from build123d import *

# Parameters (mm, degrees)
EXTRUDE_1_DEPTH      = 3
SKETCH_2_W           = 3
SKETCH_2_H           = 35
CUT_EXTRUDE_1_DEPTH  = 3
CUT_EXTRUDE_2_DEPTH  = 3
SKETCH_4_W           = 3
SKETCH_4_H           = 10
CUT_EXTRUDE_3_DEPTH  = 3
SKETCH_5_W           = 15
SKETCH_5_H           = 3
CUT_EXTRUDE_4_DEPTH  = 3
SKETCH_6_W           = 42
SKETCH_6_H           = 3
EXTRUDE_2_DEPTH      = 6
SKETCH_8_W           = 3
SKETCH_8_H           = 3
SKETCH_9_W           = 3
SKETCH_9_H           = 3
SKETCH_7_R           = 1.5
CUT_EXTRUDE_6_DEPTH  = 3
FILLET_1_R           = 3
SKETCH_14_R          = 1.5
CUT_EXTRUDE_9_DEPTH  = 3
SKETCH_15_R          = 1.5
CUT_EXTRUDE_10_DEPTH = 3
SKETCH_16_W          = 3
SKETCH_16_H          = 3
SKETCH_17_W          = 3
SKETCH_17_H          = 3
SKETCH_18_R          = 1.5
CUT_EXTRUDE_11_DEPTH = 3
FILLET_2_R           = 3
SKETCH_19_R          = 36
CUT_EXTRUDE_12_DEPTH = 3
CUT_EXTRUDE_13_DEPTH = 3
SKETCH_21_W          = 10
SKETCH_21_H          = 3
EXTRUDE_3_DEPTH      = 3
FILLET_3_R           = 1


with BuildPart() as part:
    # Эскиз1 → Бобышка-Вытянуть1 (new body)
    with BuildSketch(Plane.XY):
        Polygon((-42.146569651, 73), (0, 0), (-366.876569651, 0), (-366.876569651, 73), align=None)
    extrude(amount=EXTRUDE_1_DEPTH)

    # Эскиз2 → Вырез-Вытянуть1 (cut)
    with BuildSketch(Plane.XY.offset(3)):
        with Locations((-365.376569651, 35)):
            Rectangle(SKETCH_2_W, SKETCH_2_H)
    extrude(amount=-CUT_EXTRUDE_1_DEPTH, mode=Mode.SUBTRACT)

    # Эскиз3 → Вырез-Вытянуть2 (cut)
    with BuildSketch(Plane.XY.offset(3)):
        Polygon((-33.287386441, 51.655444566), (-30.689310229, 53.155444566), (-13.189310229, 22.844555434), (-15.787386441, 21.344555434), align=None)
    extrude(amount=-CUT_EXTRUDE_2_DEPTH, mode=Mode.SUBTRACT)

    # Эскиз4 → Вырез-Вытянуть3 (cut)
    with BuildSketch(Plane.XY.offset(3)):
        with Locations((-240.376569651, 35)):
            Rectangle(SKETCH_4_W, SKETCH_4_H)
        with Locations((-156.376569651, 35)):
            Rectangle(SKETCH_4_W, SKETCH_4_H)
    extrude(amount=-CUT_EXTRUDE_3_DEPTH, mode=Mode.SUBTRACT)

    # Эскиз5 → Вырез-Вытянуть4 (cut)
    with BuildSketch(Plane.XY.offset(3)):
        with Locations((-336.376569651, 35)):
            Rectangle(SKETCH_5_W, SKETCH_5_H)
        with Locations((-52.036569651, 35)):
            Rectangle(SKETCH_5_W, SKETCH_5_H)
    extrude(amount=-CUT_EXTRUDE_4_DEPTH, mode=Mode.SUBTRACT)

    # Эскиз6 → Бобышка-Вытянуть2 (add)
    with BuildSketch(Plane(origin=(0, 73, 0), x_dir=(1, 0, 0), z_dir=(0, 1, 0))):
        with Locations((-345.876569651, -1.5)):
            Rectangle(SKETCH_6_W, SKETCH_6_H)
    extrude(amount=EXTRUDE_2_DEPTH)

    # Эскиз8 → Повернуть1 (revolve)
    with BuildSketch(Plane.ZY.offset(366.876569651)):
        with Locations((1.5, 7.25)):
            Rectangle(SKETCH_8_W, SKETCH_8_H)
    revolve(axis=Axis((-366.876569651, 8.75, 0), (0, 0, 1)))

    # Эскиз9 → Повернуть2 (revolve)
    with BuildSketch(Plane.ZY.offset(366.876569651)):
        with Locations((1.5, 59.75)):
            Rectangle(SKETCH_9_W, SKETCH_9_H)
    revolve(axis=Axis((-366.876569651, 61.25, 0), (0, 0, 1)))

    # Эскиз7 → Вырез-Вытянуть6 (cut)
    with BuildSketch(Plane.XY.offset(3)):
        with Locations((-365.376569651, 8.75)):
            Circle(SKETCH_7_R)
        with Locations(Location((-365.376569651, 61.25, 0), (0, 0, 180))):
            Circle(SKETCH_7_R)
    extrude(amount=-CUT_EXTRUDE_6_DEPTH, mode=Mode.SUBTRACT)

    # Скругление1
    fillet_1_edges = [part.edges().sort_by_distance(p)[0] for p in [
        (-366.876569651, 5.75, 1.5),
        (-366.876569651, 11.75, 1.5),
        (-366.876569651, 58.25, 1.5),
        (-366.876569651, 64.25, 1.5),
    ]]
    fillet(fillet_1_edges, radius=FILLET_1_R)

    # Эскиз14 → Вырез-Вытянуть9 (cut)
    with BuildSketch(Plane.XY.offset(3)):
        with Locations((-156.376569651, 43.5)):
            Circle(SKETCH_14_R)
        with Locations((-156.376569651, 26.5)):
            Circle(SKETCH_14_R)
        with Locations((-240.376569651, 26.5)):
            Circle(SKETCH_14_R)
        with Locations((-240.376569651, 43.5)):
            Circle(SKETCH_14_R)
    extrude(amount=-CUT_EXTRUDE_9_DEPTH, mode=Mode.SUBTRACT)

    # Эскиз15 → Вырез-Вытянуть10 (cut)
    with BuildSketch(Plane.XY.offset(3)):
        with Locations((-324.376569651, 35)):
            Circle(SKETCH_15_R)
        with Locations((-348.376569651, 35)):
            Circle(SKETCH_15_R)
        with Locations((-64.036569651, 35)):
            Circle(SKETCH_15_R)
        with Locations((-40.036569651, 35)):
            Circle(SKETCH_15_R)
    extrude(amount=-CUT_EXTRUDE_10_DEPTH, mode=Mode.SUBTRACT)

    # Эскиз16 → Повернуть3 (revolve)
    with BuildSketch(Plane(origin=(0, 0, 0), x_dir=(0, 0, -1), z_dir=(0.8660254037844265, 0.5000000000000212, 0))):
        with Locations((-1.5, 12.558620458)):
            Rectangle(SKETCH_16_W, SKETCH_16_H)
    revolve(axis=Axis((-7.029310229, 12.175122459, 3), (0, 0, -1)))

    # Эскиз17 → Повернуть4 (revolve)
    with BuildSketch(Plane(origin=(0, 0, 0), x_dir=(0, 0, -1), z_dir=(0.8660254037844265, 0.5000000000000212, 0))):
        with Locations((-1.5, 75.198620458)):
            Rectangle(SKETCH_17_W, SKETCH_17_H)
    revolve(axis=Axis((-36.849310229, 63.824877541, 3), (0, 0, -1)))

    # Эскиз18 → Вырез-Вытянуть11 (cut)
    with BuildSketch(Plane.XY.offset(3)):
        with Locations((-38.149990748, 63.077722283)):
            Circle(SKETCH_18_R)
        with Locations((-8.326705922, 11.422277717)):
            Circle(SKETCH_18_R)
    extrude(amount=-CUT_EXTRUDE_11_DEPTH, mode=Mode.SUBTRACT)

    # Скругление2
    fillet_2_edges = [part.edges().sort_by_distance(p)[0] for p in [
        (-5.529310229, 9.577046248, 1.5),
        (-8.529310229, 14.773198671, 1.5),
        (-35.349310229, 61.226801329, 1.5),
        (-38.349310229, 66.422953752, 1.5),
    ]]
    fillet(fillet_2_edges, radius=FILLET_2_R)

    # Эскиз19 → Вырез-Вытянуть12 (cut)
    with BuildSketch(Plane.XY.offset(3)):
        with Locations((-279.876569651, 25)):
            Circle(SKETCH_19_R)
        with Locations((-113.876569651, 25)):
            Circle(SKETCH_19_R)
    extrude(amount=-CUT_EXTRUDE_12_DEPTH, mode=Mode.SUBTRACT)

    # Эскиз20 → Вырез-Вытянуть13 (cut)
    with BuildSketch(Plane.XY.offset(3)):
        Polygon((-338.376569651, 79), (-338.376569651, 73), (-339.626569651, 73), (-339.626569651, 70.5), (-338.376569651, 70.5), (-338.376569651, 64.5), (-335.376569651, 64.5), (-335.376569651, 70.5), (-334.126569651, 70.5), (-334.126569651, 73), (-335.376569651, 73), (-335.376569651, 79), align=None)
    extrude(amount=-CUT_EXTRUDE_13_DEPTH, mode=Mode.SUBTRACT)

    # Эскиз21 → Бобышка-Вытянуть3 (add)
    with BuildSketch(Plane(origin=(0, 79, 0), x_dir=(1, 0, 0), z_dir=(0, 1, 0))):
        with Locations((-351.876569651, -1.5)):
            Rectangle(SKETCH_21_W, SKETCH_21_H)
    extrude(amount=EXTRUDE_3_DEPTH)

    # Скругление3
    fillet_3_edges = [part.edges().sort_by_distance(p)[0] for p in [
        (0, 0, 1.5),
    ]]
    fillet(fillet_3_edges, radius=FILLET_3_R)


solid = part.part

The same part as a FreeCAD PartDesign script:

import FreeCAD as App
import Part
import Sketcher
from FreeCAD import Vector
Q = App.Units.Quantity


def edges_at(feature, points):
    """Names of the edges that pass closest to the given points."""
    edges = feature.Shape.Edges
    near = lambda p: min(range(len(edges)), key=lambda i: edges[i].distToShape(Part.Vertex(*p))[0])
    return sorted({f"Edge{near(p) + 1}" for p in points})

doc = App.newDocument("Part")
body = doc.addObject("PartDesign::Body", "Body")

# Sketch on XY plane
sketch1 = doc.addObject("Sketcher::SketchObject", "Sketch")
body.addObject(sketch1)
sketch1.AttachmentSupport = (doc.XY_Plane, [""])
sketch1.MapMode = "FlatFace"
sketch1.addGeometry([
    Part.LineSegment(Vector(0, 0, 0), Vector(-42, 73, 0)),
    Part.LineSegment(Vector(-42, 73, 0), Vector(-367, 73, 0)),
    Part.LineSegment(Vector(-367, 73, 0), Vector(-367, 0, 0)),
    Part.LineSegment(Vector(-367, 0, 0), Vector(0, 0, 0)),
], False)
sketch1.addConstraint([
    Sketcher.Constraint("Coincident", 0, 2, 1, 1),
    Sketcher.Constraint("Coincident", 1, 2, 2, 1),
    Sketcher.Constraint("Coincident", 2, 2, 3, 1),
    Sketcher.Constraint("Coincident", 3, 2, 0, 1),
    Sketcher.Constraint("Horizontal", 1),
    Sketcher.Constraint("Vertical", 2),
    Sketcher.Constraint("Horizontal", 3),
    Sketcher.Constraint("Coincident", 3, 2, -1, 1),
    Sketcher.Constraint("DistanceY", 2, 2, 2, 1, 73.0),
    Sketcher.Constraint("Angle", 0, Q("120 deg")),
    Sketcher.Constraint("DistanceX", 1, 2, 1, 1, 324.73),
])
pad1 = doc.addObject("PartDesign::Pad", "Pad")
body.addObject(pad1)
pad1.Profile = sketch1
pad1.Length = 3

# Sketch on XY plane
sketch2 = doc.addObject("Sketcher::SketchObject", "Sketch001")
body.addObject(sketch2)
sketch2.AttachmentSupport = (doc.XY_Plane, [""])
sketch2.MapMode = "FlatFace"
sketch2.AttachmentOffset = App.Placement(Vector(0, 0, 3), App.Rotation())
sketch2.addGeometry([
    Part.LineSegment(Vector(-366.9, 52.5, 0), Vector(-366.9, 17.5, 0)),
    Part.LineSegment(Vector(-366.9, 17.5, 0), Vector(-363.9, 17.5, 0)),
    Part.LineSegment(Vector(-363.9, 17.5, 0), Vector(-363.9, 52.5, 0)),
    Part.LineSegment(Vector(-363.9, 52.5, 0), Vector(-366.9, 52.5, 0)),
], False)
sketch2.addConstraint([
    Sketcher.Constraint("Coincident", 0, 2, 1, 1),
    Sketcher.Constraint("Coincident", 1, 2, 2, 1),
    Sketcher.Constraint("Coincident", 2, 2, 3, 1),
    Sketcher.Constraint("Coincident", 3, 2, 0, 1),
    Sketcher.Constraint("Vertical", 0),
    Sketcher.Constraint("Horizontal", 1),
    Sketcher.Constraint("Vertical", 2),
    Sketcher.Constraint("Horizontal", 3),
    Sketcher.Constraint("DistanceX", 1, 1, 1, 2, 3.0),
    Sketcher.Constraint("DistanceY", 0, 2, 0, 1, 35.0),
    Sketcher.Constraint("DistanceY", -1, 1, 0, 2, 17.5),
    Sketcher.Constraint("DistanceX", 0, 2, -1, 1, 366.87657),
])
pocket1 = doc.addObject("PartDesign::Pocket", "Pocket")
body.addObject(pocket1)
pocket1.Profile = sketch2
pocket1.Length = 3

# Sketch on XY plane
sketch3 = doc.addObject("Sketcher::SketchObject", "Sketch002")
body.addObject(sketch3)
sketch3.AttachmentSupport = (doc.XY_Plane, [""])
sketch3.MapMode = "FlatFace"
sketch3.AttachmentOffset = App.Placement(Vector(0, 0, 3), App.Rotation())
sketch3.addGeometry([
    Part.LineSegment(Vector(-30.7, 53.2, 0), Vector(-33.3, 51.7, 0)),
    Part.LineSegment(Vector(-33.3, 51.7, 0), Vector(-15.8, 21.3, 0)),
    Part.LineSegment(Vector(-15.8, 21.3, 0), Vector(-13.2, 22.8, 0)),
    Part.LineSegment(Vector(-13.2, 22.8, 0), Vector(-30.7, 53.2, 0)),
], False)
sketch3.addConstraint([
    Sketcher.Constraint("Coincident", 0, 2, 1, 1),
    Sketcher.Constraint("Coincident", 1, 2, 2, 1),
    Sketcher.Constraint("Coincident", 2, 2, 3, 1),
    Sketcher.Constraint("Coincident", 3, 2, 0, 1),
    Sketcher.Constraint("Perpendicular", 0, 1),
    Sketcher.Constraint("Perpendicular", 1, 2),
    Sketcher.Constraint("Perpendicular", 2, 3),
    Sketcher.Constraint("Angle", 0, Q("-150 deg")),
    Sketcher.Constraint("Distance", 0, 3.0),
    Sketcher.Constraint("Distance", 1, 35.0),
    Sketcher.Constraint("DistanceX", 2, 2, -1, 1, 13.18931),
    Sketcher.Constraint("DistanceY", -1, 1, 0, 2, 51.655445),
])
pocket2 = doc.addObject("PartDesign::Pocket", "Pocket001")
body.addObject(pocket2)
pocket2.Profile = sketch3
pocket2.Length = 3

# Sketch on XY plane
sketch4 = doc.addObject("Sketcher::SketchObject", "Sketch003")
body.addObject(sketch4)
sketch4.AttachmentSupport = (doc.XY_Plane, [""])
sketch4.MapMode = "FlatFace"
sketch4.AttachmentOffset = App.Placement(Vector(0, 0, 3), App.Rotation())
sketch4.addGeometry([
    Part.LineSegment(Vector(-241.9, 40, 0), Vector(-241.9, 30, 0)),  # 0
    Part.LineSegment(Vector(-241.9, 30, 0), Vector(-238.9, 30, 0)),  # 1
    Part.LineSegment(Vector(-238.9, 30, 0), Vector(-238.9, 40, 0)),  # 2
    Part.LineSegment(Vector(-238.9, 40, 0), Vector(-241.9, 40, 0)),  # 3
    Part.LineSegment(Vector(-157.9, 40, 0), Vector(-157.9, 30, 0)),  # 4
    Part.LineSegment(Vector(-157.9, 30, 0), Vector(-154.9, 30, 0)),  # 5
    Part.LineSegment(Vector(-154.9, 30, 0), Vector(-154.9, 40, 0)),  # 6
    Part.LineSegment(Vector(-154.9, 40, 0), Vector(-157.9, 40, 0)),  # 7
], False)
sketch4.addConstraint([
    Sketcher.Constraint("Coincident", 0, 2, 1, 1),
    Sketcher.Constraint("Coincident", 1, 2, 2, 1),
    Sketcher.Constraint("Coincident", 2, 2, 3, 1),
    Sketcher.Constraint("Coincident", 3, 2, 0, 1),
    Sketcher.Constraint("Coincident", 4, 2, 5, 1),
    Sketcher.Constraint("Coincident", 5, 2, 6, 1),
    Sketcher.Constraint("Coincident", 6, 2, 7, 1),
    Sketcher.Constraint("Coincident", 7, 2, 4, 1),
    Sketcher.Constraint("Vertical", 0),
    Sketcher.Constraint("Horizontal", 1),
    Sketcher.Constraint("Vertical", 2),
    Sketcher.Constraint("Horizontal", 3),
    Sketcher.Constraint("Vertical", 4),
    Sketcher.Constraint("Horizontal", 5),
    Sketcher.Constraint("Vertical", 6),
    Sketcher.Constraint("Horizontal", 7),
    Sketcher.Constraint("Horizontal", 1, 2, 4, 2),
    Sketcher.Constraint("Horizontal", 3, 2, 6, 2),
    Sketcher.Constraint("Equal", 3, 5),
    Sketcher.Constraint("DistanceX", 1, 1, 1, 2, 3.0),
    Sketcher.Constraint("DistanceY", 0, 2, 0, 1, 10.0),
    Sketcher.Constraint("DistanceY", -1, 1, 0, 2, 30.0),
    Sketcher.Constraint("DistanceX", 1, 2, 4, 2, 81.0),
    Sketcher.Constraint("DistanceX", 0, 2, -1, 1, 241.87657),
])
pocket3 = doc.addObject("PartDesign::Pocket", "Pocket002")
body.addObject(pocket3)
pocket3.Profile = sketch4
pocket3.Length = 3

# Sketch on XY plane
sketch5 = doc.addObject("Sketcher::SketchObject", "Sketch004")
body.addObject(sketch5)
sketch5.AttachmentSupport = (doc.XY_Plane, [""])
sketch5.MapMode = "FlatFace"
sketch5.AttachmentOffset = App.Placement(Vector(0, 0, 3), App.Rotation())
sketch5.addGeometry([
    Part.LineSegment(Vector(-343.9, 36.5, 0), Vector(-343.9, 33.5, 0)),  # 0
    Part.LineSegment(Vector(-343.9, 33.5, 0), Vector(-328.9, 33.5, 0)),  # 1
    Part.LineSegment(Vector(-328.9, 33.5, 0), Vector(-328.9, 36.5, 0)),  # 2
    Part.LineSegment(Vector(-328.9, 36.5, 0), Vector(-343.9, 36.5, 0)),  # 3
    Part.LineSegment(Vector(-59.5, 36.5, 0), Vector(-59.5, 33.5, 0)),  # 4
    Part.LineSegment(Vector(-59.5, 33.5, 0), Vector(-44.5, 33.5, 0)),  # 5
    Part.LineSegment(Vector(-44.5, 33.5, 0), Vector(-44.5, 36.5, 0)),  # 6
    Part.LineSegment(Vector(-44.5, 36.5, 0), Vector(-59.5, 36.5, 0)),  # 7
], False)
sketch5.addConstraint([
    Sketcher.Constraint("Coincident", 0, 2, 1, 1),
    Sketcher.Constraint("Coincident", 1, 2, 2, 1),
    Sketcher.Constraint("Coincident", 2, 2, 3, 1),
    Sketcher.Constraint("Coincident", 3, 2, 0, 1),
    Sketcher.Constraint("Coincident", 4, 2, 5, 1),
    Sketcher.Constraint("Coincident", 5, 2, 6, 1),
    Sketcher.Constraint("Coincident", 6, 2, 7, 1),
    Sketcher.Constraint("Coincident", 7, 2, 4, 1),
    Sketcher.Constraint("Vertical", 0),
    Sketcher.Constraint("Horizontal", 1),
    Sketcher.Constraint("Vertical", 2),
    Sketcher.Constraint("Horizontal", 3),
    Sketcher.Constraint("Vertical", 4),
    Sketcher.Constraint("Horizontal", 5),
    Sketcher.Constraint("Vertical", 6),
    Sketcher.Constraint("Horizontal", 7),
    Sketcher.Constraint("Horizontal", 1, 2, 4, 2),
    Sketcher.Constraint("Horizontal", 3, 2, 6, 2),
    Sketcher.Constraint("Equal", 3, 5),
    Sketcher.Constraint("DistanceX", 1, 1, 1, 2, 15.0),
    Sketcher.Constraint("DistanceY", 0, 2, 0, 1, 3.0),
    Sketcher.Constraint("DistanceY", -1, 1, 0, 2, 33.5),
    Sketcher.Constraint("DistanceX", 1, 2, 4, 2, 269.34),
    Sketcher.Constraint("DistanceX", 0, 2, -1, 1, 343.87657),
])
pocket4 = doc.addObject("PartDesign::Pocket", "Pocket003")
body.addObject(pocket4)
pocket4.Profile = sketch5
pocket4.Length = 3

# Sketch on XZ plane
sketch6 = doc.addObject("Sketcher::SketchObject", "Sketch005")
body.addObject(sketch6)
sketch6.AttachmentSupport = (doc.XZ_Plane, [""])
sketch6.MapMode = "FlatFace"
sketch6.AttachmentOffset = App.Placement(Vector(0, 0, -73), App.Rotation())
sketch6.addGeometry([
    Part.LineSegment(Vector(-366.9, 0, 0), Vector(-366.9, 3, 0)),
    Part.LineSegment(Vector(-366.9, 3, 0), Vector(-324.9, 3, 0)),
    Part.LineSegment(Vector(-324.9, 3, 0), Vector(-324.9, 0, 0)),
    Part.LineSegment(Vector(-324.9, 0, 0), Vector(-366.9, 0, 0)),
], False)
sketch6.addConstraint([
    Sketcher.Constraint("Coincident", 0, 2, 1, 1),
    Sketcher.Constraint("Coincident", 1, 2, 2, 1),
    Sketcher.Constraint("Coincident", 2, 2, 3, 1),
    Sketcher.Constraint("Coincident", 3, 2, 0, 1),
    Sketcher.Constraint("Vertical", 0),
    Sketcher.Constraint("Horizontal", 1),
    Sketcher.Constraint("Vertical", 2),
    Sketcher.Constraint("Horizontal", 3),
    Sketcher.Constraint("PointOnObject", 2, 2, -1),
    Sketcher.Constraint("DistanceX", 1, 1, 1, 2, 42.0),
    Sketcher.Constraint("DistanceY", 0, 1, 0, 2, 3.0),
    Sketcher.Constraint("DistanceX", 0, 2, -1, 1, 366.87657),
])
pad2 = doc.addObject("PartDesign::Pad", "Pad001")
body.addObject(pad2)
pad2.Profile = sketch6
pad2.Length = 6
pad2.Reversed = True

# Sketch on YZ plane
sketch7 = doc.addObject("Sketcher::SketchObject", "Sketch006")
body.addObject(sketch7)
sketch7.AttachmentSupport = (doc.YZ_Plane, [""])
sketch7.MapMode = "FlatFace"
sketch7.AttachmentOffset = App.Placement(Vector(0, 0, -366.87657), App.Rotation())
sketch7.addGeometry([
    Part.LineSegment(Vector(8.8, 0, 0), Vector(5.8, 0, 0)),
    Part.LineSegment(Vector(5.8, 0, 0), Vector(5.8, 3, 0)),
    Part.LineSegment(Vector(5.8, 3, 0), Vector(8.8, 3, 0)),
    Part.LineSegment(Vector(8.8, 3, 0), Vector(8.8, 0, 0)),
], False)
sketch7.addGeometry(Part.LineSegment(Vector(8.8, 0, 0), Vector(8.8, 3, 0)), True)  # axis
sketch7.addConstraint([
    Sketcher.Constraint("Coincident", 0, 2, 1, 1),
    Sketcher.Constraint("Coincident", 1, 2, 2, 1),
    Sketcher.Constraint("Coincident", 2, 2, 3, 1),
    Sketcher.Constraint("Coincident", 3, 2, 0, 1),
    Sketcher.Constraint("Horizontal", 0),
    Sketcher.Constraint("Vertical", 1),
    Sketcher.Constraint("Horizontal", 2),
    Sketcher.Constraint("Vertical", 3),
    Sketcher.Constraint("Vertical", 4),
    Sketcher.Constraint("Coincident", 4, 1, 3, 2),
    Sketcher.Constraint("PointOnObject", 0, 2, -1),
    Sketcher.Constraint("Horizontal", 1, 2, 4, 2),
    Sketcher.Constraint("Equal", 2, 1),
    Sketcher.Constraint("DistanceX", 0, 2, 0, 1, 3.0),
    Sketcher.Constraint("DistanceX", -1, 1, 0, 2, 5.75),
])
revolution = doc.addObject("PartDesign::Revolution", "Revolution")
body.addObject(revolution)
revolution.Profile = sketch7
revolution.ReferenceAxis = (sketch7, ["Axis0"])
revolution.Angle = 360

# Sketch on YZ plane
sketch8 = doc.addObject("Sketcher::SketchObject", "Sketch007")
body.addObject(sketch8)
sketch8.AttachmentSupport = (doc.YZ_Plane, [""])
sketch8.MapMode = "FlatFace"
sketch8.AttachmentOffset = App.Placement(Vector(0, 0, -366.87657), App.Rotation())
sketch8.addGeometry([
    Part.LineSegment(Vector(61.2, 0, 0), Vector(58.2, 0, 0)),
    Part.LineSegment(Vector(58.2, 0, 0), Vector(58.2, 3, 0)),
    Part.LineSegment(Vector(58.2, 3, 0), Vector(61.2, 3, 0)),
    Part.LineSegment(Vector(61.2, 3, 0), Vector(61.2, 0, 0)),
], False)
sketch8.addGeometry(Part.LineSegment(Vector(61.2, 0, 0), Vector(61.2, 3, 0)), True)  # axis
sketch8.addConstraint([
    Sketcher.Constraint("Coincident", 0, 2, 1, 1),
    Sketcher.Constraint("Coincident", 1, 2, 2, 1),
    Sketcher.Constraint("Coincident", 2, 2, 3, 1),
    Sketcher.Constraint("Coincident", 3, 2, 0, 1),
    Sketcher.Constraint("Horizontal", 0),
    Sketcher.Constraint("Vertical", 1),
    Sketcher.Constraint("Horizontal", 2),
    Sketcher.Constraint("Vertical", 3),
    Sketcher.Constraint("Vertical", 4),
    Sketcher.Constraint("Coincident", 4, 1, 3, 2),
    Sketcher.Constraint("PointOnObject", 0, 2, -1),
    Sketcher.Constraint("Horizontal", 1, 2, 4, 2),
    Sketcher.Constraint("Equal", 2, 1),
    Sketcher.Constraint("DistanceX", 0, 2, 0, 1, 3.0),
    Sketcher.Constraint("DistanceX", -1, 1, 0, 2, 58.25),
])
revolution2 = doc.addObject("PartDesign::Revolution", "Revolution001")
body.addObject(revolution2)
revolution2.Profile = sketch8
revolution2.ReferenceAxis = (sketch8, ["Axis0"])
revolution2.Angle = 360

# Sketch on XY plane
sketch9 = doc.addObject("Sketcher::SketchObject", "Sketch008")
body.addObject(sketch9)
sketch9.AttachmentSupport = (doc.XY_Plane, [""])
sketch9.MapMode = "FlatFace"
sketch9.AttachmentOffset = App.Placement(Vector(0, 0, 3), App.Rotation())
sketch9.addGeometry([
    Part.Circle(Vector(-365.4, 8.8, 0), Vector(0, 0, 1), 1.5),
    Part.Circle(Vector(-365.4, 61.2, 0), Vector(0, 0, 1), 1.5),
], False)
sketch9.addConstraint([
    Sketcher.Constraint("Equal", 0, 1),
    Sketcher.Constraint("Vertical", 0, 3, 1, 3),
    Sketcher.Constraint("Diameter", 0, 3.0),
    Sketcher.Constraint("DistanceY", 0, 3, 1, 3, 52.5),
    Sketcher.Constraint("DistanceY", -1, 1, 0, 3, 8.75),
    Sketcher.Constraint("DistanceX", 0, 3, -1, 1, 365.37657),
])
pocket5 = doc.addObject("PartDesign::Pocket", "Pocket004")
body.addObject(pocket5)
pocket5.Profile = sketch9
pocket5.Length = 3
doc.recompute()

fillet = doc.addObject("PartDesign::Fillet", "Fillet")
body.addObject(fillet)
fillet.Base = (pocket5, edges_at(pocket5, [
    (-366.877, 5.75, 1.5),
    (-366.877, 11.75, 1.5),
    (-366.877, 58.25, 1.5),
    (-366.877, 64.25, 1.5),
]))
fillet.Radius = 3

# Sketch on XY plane
sketch10 = doc.addObject("Sketcher::SketchObject", "Sketch009")
body.addObject(sketch10)
sketch10.AttachmentSupport = (doc.XY_Plane, [""])
sketch10.MapMode = "FlatFace"
sketch10.AttachmentOffset = App.Placement(Vector(0, 0, 3), App.Rotation())
sketch10.addGeometry([
    Part.Circle(Vector(-156.4, 43.5, 0), Vector(0, 0, 1), 1.5),
    Part.Circle(Vector(-156.4, 26.5, 0), Vector(0, 0, 1), 1.5),
    Part.Circle(Vector(-240.4, 26.5, 0), Vector(0, 0, 1), 1.5),
    Part.Circle(Vector(-240.4, 43.5, 0), Vector(0, 0, 1), 1.5),
], False)
sketch10.addConstraint([
    Sketcher.Constraint("Equal", 0, 1),
    Sketcher.Constraint("Equal", 1, 2),
    Sketcher.Constraint("Equal", 2, 3),
    Sketcher.Constraint("Horizontal", 1, 3, 2, 3),
    Sketcher.Constraint("Horizontal", 0, 3, 3, 3),
    Sketcher.Constraint("Vertical", 0, 3, 1, 3),
    Sketcher.Constraint("Vertical", 2, 3, 3, 3),
    Sketcher.Constraint("Diameter", 0, 3.0),
    Sketcher.Constraint("DistanceY", 1, 3, 0, 3, 17.0),
    Sketcher.Constraint("DistanceX", 2, 3, 1, 3, 84.0),
    Sketcher.Constraint("DistanceY", -1, 1, 0, 3, 43.5),
    Sketcher.Constraint("DistanceX", 0, 3, -1, 1, 156.37657),
])
pocket6 = doc.addObject("PartDesign::Pocket", "Pocket005")
body.addObject(pocket6)
pocket6.Profile = sketch10
pocket6.Length = 3

# Sketch on XY plane
sketch11 = doc.addObject("Sketcher::SketchObject", "Sketch010")
body.addObject(sketch11)
sketch11.AttachmentSupport = (doc.XY_Plane, [""])
sketch11.MapMode = "FlatFace"
sketch11.AttachmentOffset = App.Placement(Vector(0, 0, 3), App.Rotation())
sketch11.addGeometry([
    Part.Circle(Vector(-324.4, 35, 0), Vector(0, 0, 1), 1.5),
    Part.Circle(Vector(-348.4, 35, 0), Vector(0, 0, 1), 1.5),
    Part.Circle(Vector(-64, 35, 0), Vector(0, 0, 1), 1.5),
    Part.Circle(Vector(-40, 35, 0), Vector(0, 0, 1), 1.5),
], False)
sketch11.addConstraint([
    Sketcher.Constraint("Equal", 0, 1),
    Sketcher.Constraint("Equal", 1, 2),
    Sketcher.Constraint("Equal", 2, 3),
    Sketcher.Constraint("Horizontal", 0, 3, 1, 3),
    Sketcher.Constraint("Horizontal", 1, 3, 2, 3),
    Sketcher.Constraint("Horizontal", 2, 3, 3, 3),
    Sketcher.Constraint("Diameter", 0, 3.0),
    Sketcher.Constraint("DistanceY", -1, 1, 0, 3, 35.0),
    Sketcher.Constraint("DistanceX", 1, 3, 0, 3, 24.0),
    Sketcher.Constraint("DistanceX", 2, 3, 3, 3, 24.0),
    Sketcher.Constraint("DistanceX", 0, 3, 2, 3, 260.34),
    Sketcher.Constraint("DistanceX", 0, 3, -1, 1, 324.37657),
])
pocket7 = doc.addObject("PartDesign::Pocket", "Pocket006")
body.addObject(pocket7)
pocket7.Profile = sketch11
pocket7.Length = 3

# Sketch on an angled plane
sketch12 = doc.addObject("Sketcher::SketchObject", "Sketch011")
body.addObject(sketch12)
sketch12.Placement = App.Placement(Vector(0, 0, 0), App.Rotation(Vector(0, 0, -1), Vector(-0.5, 0.866025404, 0), Vector(0.866025404, 0.5, 0), "ZXY"))
sketch12.addGeometry([
    Part.LineSegment(Vector(-3, 14.1, 0), Vector(-3, 11.1, 0)),
    Part.LineSegment(Vector(-3, 11.1, 0), Vector(0, 11.1, 0)),
    Part.LineSegment(Vector(0, 11.1, 0), Vector(0, 14.1, 0)),
    Part.LineSegment(Vector(0, 14.1, 0), Vector(-3, 14.1, 0)),
], False)
sketch12.addGeometry(Part.LineSegment(Vector(-3, 14.1, 0), Vector(0, 14.1, 0)), True)  # axis
sketch12.addConstraint([
    Sketcher.Constraint("Coincident", 0, 2, 1, 1),
    Sketcher.Constraint("Coincident", 1, 2, 2, 1),
    Sketcher.Constraint("Coincident", 2, 2, 3, 1),
    Sketcher.Constraint("Coincident", 3, 2, 0, 1),
    Sketcher.Constraint("Vertical", 0),
    Sketcher.Constraint("Horizontal", 1),
    Sketcher.Constraint("Vertical", 2),
    Sketcher.Constraint("Horizontal", 3),
    Sketcher.Constraint("Horizontal", 4),
    Sketcher.Constraint("Coincident", 4, 1, 3, 2),
    Sketcher.Constraint("PointOnObject", 1, 2, -2),
    Sketcher.Constraint("PointOnObject", 4, 2, -2),
    Sketcher.Constraint("Equal", 4, 0),
    Sketcher.Constraint("DistanceX", 1, 1, 1, 2, 3.0),
    Sketcher.Constraint("DistanceY", -1, 1, 0, 2, 11.05862),
])
revolution3 = doc.addObject("PartDesign::Revolution", "Revolution002")
body.addObject(revolution3)
revolution3.Profile = sketch12
revolution3.ReferenceAxis = (sketch12, ["Axis0"])
revolution3.Angle = 360

# Sketch on an angled plane
sketch13 = doc.addObject("Sketcher::SketchObject", "Sketch012")
body.addObject(sketch13)
sketch13.Placement = App.Placement(Vector(0, 0, 0), App.Rotation(Vector(0, 0, -1), Vector(-0.5, 0.866025404, 0), Vector(0.866025404, 0.5, 0), "ZXY"))
sketch13.addGeometry([
    Part.LineSegment(Vector(-3, 76.7, 0), Vector(-3, 73.7, 0)),
    Part.LineSegment(Vector(-3, 73.7, 0), Vector(0, 73.7, 0)),
    Part.LineSegment(Vector(0, 73.7, 0), Vector(0, 76.7, 0)),
    Part.LineSegment(Vector(0, 76.7, 0), Vector(-3, 76.7, 0)),
], False)
sketch13.addGeometry(Part.LineSegment(Vector(-3, 73.7, 0), Vector(0, 73.7, 0)), True)  # axis
sketch13.addConstraint([
    Sketcher.Constraint("Coincident", 0, 2, 1, 1),
    Sketcher.Constraint("Coincident", 1, 2, 2, 1),
    Sketcher.Constraint("Coincident", 2, 2, 3, 1),
    Sketcher.Constraint("Coincident", 3, 2, 0, 1),
    Sketcher.Constraint("Vertical", 0),
    Sketcher.Constraint("Horizontal", 1),
    Sketcher.Constraint("Vertical", 2),
    Sketcher.Constraint("Horizontal", 3),
    Sketcher.Constraint("Horizontal", 4),
    Sketcher.Constraint("Coincident", 4, 1, 0, 2),
    Sketcher.Constraint("PointOnObject", 1, 2, -2),
    Sketcher.Constraint("PointOnObject", 4, 2, -2),
    Sketcher.Constraint("Equal", 4, 0),
    Sketcher.Constraint("DistanceX", 1, 1, 1, 2, 3.0),
    Sketcher.Constraint("DistanceY", -1, 1, 0, 2, 73.69862),
])
revolution4 = doc.addObject("PartDesign::Revolution", "Revolution003")
body.addObject(revolution4)
revolution4.Profile = sketch13
revolution4.ReferenceAxis = (sketch13, ["Axis0"])
revolution4.Angle = 360

# Sketch on XY plane
sketch14 = doc.addObject("Sketcher::SketchObject", "Sketch013")
body.addObject(sketch14)
sketch14.AttachmentSupport = (doc.XY_Plane, [""])
sketch14.MapMode = "FlatFace"
sketch14.AttachmentOffset = App.Placement(Vector(0, 0, 3), App.Rotation())
sketch14.addGeometry([
    Part.Circle(Vector(-38.1, 63.1, 0), Vector(0, 0, 1), 1.5),
    Part.Circle(Vector(-8.3, 11.4, 0), Vector(0, 0, 1), 1.5),
], False)
sketch14.addConstraint([
    Sketcher.Constraint("Equal", 0, 1),
    Sketcher.Constraint("Diameter", 0, 3.0),
    Sketcher.Constraint("DistanceX", 0, 3, -1, 1, 38.149991),
    Sketcher.Constraint("DistanceY", -1, 1, 0, 3, 63.077722),
    Sketcher.Constraint("DistanceX", 1, 3, -1, 1, 8.326706),
    Sketcher.Constraint("DistanceY", -1, 1, 1, 3, 11.422278),
])
pocket8 = doc.addObject("PartDesign::Pocket", "Pocket007")
body.addObject(pocket8)
pocket8.Profile = sketch14
pocket8.Length = 3
doc.recompute()

fillet2 = doc.addObject("PartDesign::Fillet", "Fillet001")
body.addObject(fillet2)
fillet2.Base = (pocket8, edges_at(pocket8, [
    (-5.529, 9.577, 1.5),
    (-8.529, 14.773, 1.5),
    (-35.349, 61.227, 1.5),
    (-38.349, 66.423, 1.5),
]))
fillet2.Radius = 3

# Sketch on XY plane
sketch15 = doc.addObject("Sketcher::SketchObject", "Sketch014")
body.addObject(sketch15)
sketch15.AttachmentSupport = (doc.XY_Plane, [""])
sketch15.MapMode = "FlatFace"
sketch15.AttachmentOffset = App.Placement(Vector(0, 0, 3), App.Rotation())
sketch15.addGeometry([
    Part.Circle(Vector(-280, 25, 0), Vector(0, 0, 1), 36),
    Part.Circle(Vector(-114, 25, 0), Vector(0, 0, 1), 36),
], False)
sketch15.addConstraint([
    Sketcher.Constraint("Equal", 0, 1),
    Sketcher.Constraint("Horizontal", 0, 3, 1, 3),
    Sketcher.Constraint("Diameter", 0, 72.0),
    Sketcher.Constraint("DistanceY", -1, 1, 0, 3, 25.0),
    Sketcher.Constraint("DistanceX", 0, 3, 1, 3, 166.0),
    Sketcher.Constraint("DistanceX", 0, 3, -1, 1, 279.87657),
])
pocket9 = doc.addObject("PartDesign::Pocket", "Pocket008")
body.addObject(pocket9)
pocket9.Profile = sketch15
pocket9.Length = 3

# Sketch on XY plane
sketch16 = doc.addObject("Sketcher::SketchObject", "Sketch015")
body.addObject(sketch16)
sketch16.AttachmentSupport = (doc.XY_Plane, [""])
sketch16.MapMode = "FlatFace"
sketch16.AttachmentOffset = App.Placement(Vector(0, 0, 3), App.Rotation())
sketch16.addGeometry([
    Part.LineSegment(Vector(-338.4, 79, 0), Vector(-338.4, 73, 0)),  # 0
    Part.LineSegment(Vector(-338.4, 73, 0), Vector(-339.6, 73, 0)),  # 1
    Part.LineSegment(Vector(-339.6, 73, 0), Vector(-339.6, 70.5, 0)),  # 2
    Part.LineSegment(Vector(-339.6, 70.5, 0), Vector(-338.4, 70.5, 0)),  # 3
    Part.LineSegment(Vector(-338.4, 70.5, 0), Vector(-338.4, 64.5, 0)),  # 4
    Part.LineSegment(Vector(-338.4, 64.5, 0), Vector(-335.4, 64.5, 0)),  # 5
    Part.LineSegment(Vector(-335.4, 64.5, 0), Vector(-335.4, 70.5, 0)),  # 6
    Part.LineSegment(Vector(-335.4, 70.5, 0), Vector(-334.1, 70.5, 0)),  # 7
    Part.LineSegment(Vector(-334.1, 70.5, 0), Vector(-334.1, 73, 0)),  # 8
    Part.LineSegment(Vector(-334.1, 73, 0), Vector(-335.4, 73, 0)),  # 9
    Part.LineSegment(Vector(-335.4, 73, 0), Vector(-335.4, 79, 0)),  # 10
    Part.LineSegment(Vector(-335.4, 79, 0), Vector(-338.4, 79, 0)),  # 11
], False)
sketch16.addConstraint([
    Sketcher.Constraint("Coincident", 0, 2, 1, 1),
    Sketcher.Constraint("Coincident", 1, 2, 2, 1),
    Sketcher.Constraint("Coincident", 2, 2, 3, 1),
    Sketcher.Constraint("Coincident", 3, 2, 4, 1),
    Sketcher.Constraint("Coincident", 4, 2, 5, 1),
    Sketcher.Constraint("Coincident", 5, 2, 6, 1),
    Sketcher.Constraint("Coincident", 6, 2, 7, 1),
    Sketcher.Constraint("Coincident", 7, 2, 8, 1),
    Sketcher.Constraint("Coincident", 8, 2, 9, 1),
    Sketcher.Constraint("Coincident", 9, 2, 10, 1),
    Sketcher.Constraint("Coincident", 10, 2, 11, 1),
    Sketcher.Constraint("Coincident", 11, 2, 0, 1),
    Sketcher.Constraint("Vertical", 0),
    Sketcher.Constraint("Horizontal", 1),
    Sketcher.Constraint("Vertical", 2),
    Sketcher.Constraint("Horizontal", 3),
    Sketcher.Constraint("Vertical", 4),
    Sketcher.Constraint("Horizontal", 5),
    Sketcher.Constraint("Vertical", 6),
    Sketcher.Constraint("Horizontal", 7),
    Sketcher.Constraint("Vertical", 8),
    Sketcher.Constraint("Horizontal", 9),
    Sketcher.Constraint("Vertical", 10),
    Sketcher.Constraint("Horizontal", 11),
    Sketcher.Constraint("Horizontal", 3, 2, 6, 2),
    Sketcher.Constraint("Horizontal", 1, 2, 8, 2),
    Sketcher.Constraint("Vertical", 0, 2, 3, 2),
    Sketcher.Constraint("Vertical", 6, 2, 9, 2),
    Sketcher.Constraint("Equal", 3, 7),
    Sketcher.Constraint("Equal", 0, 4),
    Sketcher.Constraint("DistanceX", 5, 1, 5, 2, 3.0),
    Sketcher.Constraint("DistanceY", 0, 2, 0, 1, 6.0),
    Sketcher.Constraint("DistanceY", 2, 2, 2, 1, 2.5),
    Sketcher.Constraint("DistanceY", -1, 1, 0, 2, 73.0),
    Sketcher.Constraint("DistanceX", 1, 2, 1, 1, 1.25),
    Sketcher.Constraint("DistanceX", 0, 2, -1, 1, 338.37657),
])
pocket10 = doc.addObject("PartDesign::Pocket", "Pocket009")
body.addObject(pocket10)
pocket10.Profile = sketch16
pocket10.Length = 3

# Sketch on XZ plane
sketch17 = doc.addObject("Sketcher::SketchObject", "Sketch016")
body.addObject(sketch17)
sketch17.AttachmentSupport = (doc.XZ_Plane, [""])
sketch17.MapMode = "FlatFace"
sketch17.AttachmentOffset = App.Placement(Vector(0, 0, -79), App.Rotation())
sketch17.addGeometry([
    Part.LineSegment(Vector(-356.9, 0, 0), Vector(-356.9, 3, 0)),
    Part.LineSegment(Vector(-356.9, 3, 0), Vector(-346.9, 3, 0)),
    Part.LineSegment(Vector(-346.9, 3, 0), Vector(-346.9, 0, 0)),
    Part.LineSegment(Vector(-346.9, 0, 0), Vector(-356.9, 0, 0)),
], False)
sketch17.addConstraint([
    Sketcher.Constraint("Coincident", 0, 2, 1, 1),
    Sketcher.Constraint("Coincident", 1, 2, 2, 1),
    Sketcher.Constraint("Coincident", 2, 2, 3, 1),
    Sketcher.Constraint("Coincident", 3, 2, 0, 1),
    Sketcher.Constraint("Vertical", 0),
    Sketcher.Constraint("Horizontal", 1),
    Sketcher.Constraint("Vertical", 2),
    Sketcher.Constraint("Horizontal", 3),
    Sketcher.Constraint("PointOnObject", 2, 2, -1),
    Sketcher.Constraint("DistanceX", 1, 1, 1, 2, 10.0),
    Sketcher.Constraint("DistanceY", 0, 1, 0, 2, 3.0),
    Sketcher.Constraint("DistanceX", 0, 2, -1, 1, 356.87657),
])
pad3 = doc.addObject("PartDesign::Pad", "Pad002")
body.addObject(pad3)
pad3.Profile = sketch17
pad3.Length = 3
pad3.Reversed = True
doc.recompute()

fillet3 = doc.addObject("PartDesign::Fillet", "Fillet002")
body.addObject(fillet3)
fillet3.Base = (pad3, edges_at(pad3, [(0, 0, 1.5)]))
fillet3.Radius = 1

doc.recompute()
